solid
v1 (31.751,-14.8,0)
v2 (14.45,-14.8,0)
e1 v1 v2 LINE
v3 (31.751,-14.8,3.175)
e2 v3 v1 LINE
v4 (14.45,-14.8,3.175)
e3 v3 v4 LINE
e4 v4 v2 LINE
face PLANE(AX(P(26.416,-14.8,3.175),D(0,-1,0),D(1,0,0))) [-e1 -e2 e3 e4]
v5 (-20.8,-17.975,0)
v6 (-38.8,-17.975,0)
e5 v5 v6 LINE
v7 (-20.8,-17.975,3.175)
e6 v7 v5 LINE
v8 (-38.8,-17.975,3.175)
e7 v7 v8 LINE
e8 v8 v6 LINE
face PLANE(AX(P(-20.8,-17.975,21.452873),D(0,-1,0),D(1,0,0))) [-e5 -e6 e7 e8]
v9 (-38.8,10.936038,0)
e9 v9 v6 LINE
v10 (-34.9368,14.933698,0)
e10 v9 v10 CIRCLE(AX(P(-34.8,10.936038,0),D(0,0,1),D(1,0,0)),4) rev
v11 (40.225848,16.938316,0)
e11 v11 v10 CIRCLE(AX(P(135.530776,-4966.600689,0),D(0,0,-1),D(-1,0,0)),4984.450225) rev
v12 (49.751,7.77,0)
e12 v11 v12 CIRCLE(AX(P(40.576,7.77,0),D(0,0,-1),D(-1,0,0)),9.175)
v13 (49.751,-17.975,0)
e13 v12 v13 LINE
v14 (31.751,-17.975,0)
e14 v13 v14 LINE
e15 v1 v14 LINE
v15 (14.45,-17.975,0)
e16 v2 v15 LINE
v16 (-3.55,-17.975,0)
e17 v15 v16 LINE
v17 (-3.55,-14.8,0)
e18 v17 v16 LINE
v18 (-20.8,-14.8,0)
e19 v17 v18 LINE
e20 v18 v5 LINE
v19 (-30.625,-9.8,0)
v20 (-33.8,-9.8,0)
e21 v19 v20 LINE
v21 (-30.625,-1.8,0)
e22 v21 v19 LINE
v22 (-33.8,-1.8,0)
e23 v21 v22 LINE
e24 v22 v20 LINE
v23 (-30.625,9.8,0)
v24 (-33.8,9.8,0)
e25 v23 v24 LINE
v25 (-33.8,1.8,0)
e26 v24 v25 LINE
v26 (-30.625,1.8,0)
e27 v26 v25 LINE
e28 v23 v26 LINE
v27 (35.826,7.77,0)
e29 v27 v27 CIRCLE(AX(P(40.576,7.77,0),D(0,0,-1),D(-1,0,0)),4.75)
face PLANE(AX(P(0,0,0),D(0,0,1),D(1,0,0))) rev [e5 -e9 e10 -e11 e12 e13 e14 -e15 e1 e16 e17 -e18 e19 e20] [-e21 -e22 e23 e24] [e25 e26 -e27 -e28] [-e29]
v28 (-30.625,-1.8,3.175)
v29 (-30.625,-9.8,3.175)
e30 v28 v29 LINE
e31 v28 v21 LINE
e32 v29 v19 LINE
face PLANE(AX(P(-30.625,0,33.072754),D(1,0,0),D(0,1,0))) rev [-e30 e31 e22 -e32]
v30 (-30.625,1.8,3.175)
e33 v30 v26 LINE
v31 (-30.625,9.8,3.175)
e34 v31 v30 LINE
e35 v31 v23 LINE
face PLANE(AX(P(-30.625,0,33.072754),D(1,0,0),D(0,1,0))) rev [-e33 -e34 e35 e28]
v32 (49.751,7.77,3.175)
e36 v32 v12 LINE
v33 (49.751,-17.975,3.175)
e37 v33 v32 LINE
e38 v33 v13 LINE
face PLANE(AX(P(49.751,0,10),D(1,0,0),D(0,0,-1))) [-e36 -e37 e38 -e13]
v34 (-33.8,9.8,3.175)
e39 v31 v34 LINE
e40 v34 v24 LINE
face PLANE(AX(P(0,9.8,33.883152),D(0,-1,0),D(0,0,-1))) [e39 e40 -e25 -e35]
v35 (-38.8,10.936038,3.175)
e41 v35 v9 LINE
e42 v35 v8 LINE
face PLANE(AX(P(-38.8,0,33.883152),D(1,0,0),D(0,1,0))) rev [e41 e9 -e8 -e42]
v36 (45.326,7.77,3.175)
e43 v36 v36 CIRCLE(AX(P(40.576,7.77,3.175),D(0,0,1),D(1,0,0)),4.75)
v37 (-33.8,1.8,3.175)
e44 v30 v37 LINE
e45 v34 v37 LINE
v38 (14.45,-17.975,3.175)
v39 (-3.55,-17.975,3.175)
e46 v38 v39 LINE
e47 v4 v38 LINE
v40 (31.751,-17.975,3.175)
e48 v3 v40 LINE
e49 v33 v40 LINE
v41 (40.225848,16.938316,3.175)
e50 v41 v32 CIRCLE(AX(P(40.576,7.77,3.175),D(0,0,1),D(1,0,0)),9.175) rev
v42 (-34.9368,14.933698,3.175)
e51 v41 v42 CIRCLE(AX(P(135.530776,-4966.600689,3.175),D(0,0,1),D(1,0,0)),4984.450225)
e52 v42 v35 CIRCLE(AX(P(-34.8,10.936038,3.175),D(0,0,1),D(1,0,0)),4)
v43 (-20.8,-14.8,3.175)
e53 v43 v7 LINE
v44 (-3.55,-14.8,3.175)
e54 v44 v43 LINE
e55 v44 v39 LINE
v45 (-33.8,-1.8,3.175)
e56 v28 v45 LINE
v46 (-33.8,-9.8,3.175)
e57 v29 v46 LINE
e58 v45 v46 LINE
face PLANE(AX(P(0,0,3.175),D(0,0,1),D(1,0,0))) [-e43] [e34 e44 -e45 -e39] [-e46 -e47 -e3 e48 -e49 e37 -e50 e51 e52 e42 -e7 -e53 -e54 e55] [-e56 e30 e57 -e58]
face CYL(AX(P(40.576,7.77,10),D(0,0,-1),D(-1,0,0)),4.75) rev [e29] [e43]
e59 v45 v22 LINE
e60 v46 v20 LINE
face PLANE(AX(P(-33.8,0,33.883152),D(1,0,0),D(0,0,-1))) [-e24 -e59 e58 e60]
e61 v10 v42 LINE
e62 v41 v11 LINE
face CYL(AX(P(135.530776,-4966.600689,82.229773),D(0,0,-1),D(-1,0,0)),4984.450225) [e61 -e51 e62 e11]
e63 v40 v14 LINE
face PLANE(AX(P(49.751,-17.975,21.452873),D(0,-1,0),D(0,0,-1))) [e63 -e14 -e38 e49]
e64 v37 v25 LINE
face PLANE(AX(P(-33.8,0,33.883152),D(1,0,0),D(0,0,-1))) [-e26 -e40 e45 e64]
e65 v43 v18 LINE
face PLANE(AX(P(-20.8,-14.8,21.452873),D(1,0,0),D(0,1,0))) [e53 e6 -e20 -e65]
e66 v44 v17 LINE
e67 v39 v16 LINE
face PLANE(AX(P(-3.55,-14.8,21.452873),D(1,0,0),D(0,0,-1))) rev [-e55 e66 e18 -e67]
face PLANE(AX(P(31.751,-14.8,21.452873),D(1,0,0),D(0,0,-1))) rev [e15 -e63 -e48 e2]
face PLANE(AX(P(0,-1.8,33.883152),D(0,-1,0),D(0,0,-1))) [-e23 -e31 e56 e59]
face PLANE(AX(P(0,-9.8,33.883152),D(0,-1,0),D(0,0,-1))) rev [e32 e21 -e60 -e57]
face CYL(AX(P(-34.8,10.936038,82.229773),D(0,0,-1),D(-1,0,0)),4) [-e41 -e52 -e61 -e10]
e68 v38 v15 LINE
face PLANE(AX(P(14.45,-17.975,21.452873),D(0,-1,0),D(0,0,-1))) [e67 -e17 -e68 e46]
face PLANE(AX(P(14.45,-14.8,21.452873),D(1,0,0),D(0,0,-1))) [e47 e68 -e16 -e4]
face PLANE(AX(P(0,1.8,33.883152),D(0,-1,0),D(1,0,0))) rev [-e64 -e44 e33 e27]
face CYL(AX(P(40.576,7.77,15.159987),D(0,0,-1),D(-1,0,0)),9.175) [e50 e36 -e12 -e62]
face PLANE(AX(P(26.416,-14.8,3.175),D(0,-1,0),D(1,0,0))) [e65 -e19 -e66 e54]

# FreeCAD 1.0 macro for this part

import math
import FreeCAD as App
import Part
import Sketcher

V = App.Vector


def edges_at(feature, points):
    """Names of the edges that pass closest to the given points."""
    edges = feature.Shape.Edges
    near = lambda p: min(range(len(edges)), key=lambda i: edges[i].distToShape(Part.Vertex(*p))[0])
    return sorted({f"Edge{near(p) + 1}" for p in points})

doc = App.newDocument("Part")
body = doc.addObject("PartDesign::Body", "Body")

sketch1 = body.newObject("Sketcher::SketchObject", "Sketch")
sketch1.AttachmentSupport = (doc.getObject("XY_Plane"), [""])
sketch1.MapMode = "FlatFace"
sketch1.addGeometry([
    Part.LineSegment(V(-26.4, -14.8, 0), V(26.4, -14.8, 0)),
    Part.LineSegment(V(26.4, -14.8, 0), V(26.4, 14.8, 0)),
    Part.LineSegment(V(26.4, 14.8, 0), V(-26.4, 14.8, 0)),
    Part.LineSegment(V(-26.4, 14.8, 0), V(-26.4, -14.8, 0)),
    Part.LineSegment(V(-20.1, -9.8, 0), V(-20.1, 9.8, 0)),
    Part.LineSegment(V(-20.1, 9.8, 0), V(20.1, 9.8, 0)),
    Part.LineSegment(V(20.1, 9.8, 0), V(20.1, -9.8, 0)),
    Part.LineSegment(V(20.1, -9.8, 0), V(-20.1, -9.8, 0)),
    Part.Circle(V(-23.9, -5, 0), V(0, 0, 1), 1.7),
    Part.Circle(V(-23.9, 5, 0), V(0, 0, 1), 1.7),
    Part.Circle(V(23.9, 5, 0), V(0, 0, 1), 1.7),
    Part.Circle(V(23.9, -5, 0), V(0, 0, 1), 1.7),
], False)
sketch1.addConstraint([
    Sketcher.Constraint("Coincident", 0, 2, 1, 1),
    Sketcher.Constraint("Coincident", 1, 2, 2, 1),
    Sketcher.Constraint("Coincident", 2, 2, 3, 1),
    Sketcher.Constraint("Coincident", 3, 2, 0, 1),
    Sketcher.Constraint("Coincident", 4, 2, 5, 1),
    Sketcher.Constraint("Coincident", 5, 2, 6, 1),
    Sketcher.Constraint("Coincident", 6, 2, 7, 1),
    Sketcher.Constraint("Coincident", 7, 2, 4, 1),
    Sketcher.Constraint("Horizontal", 0),
    Sketcher.Constraint("Vertical", 1),
    Sketcher.Constraint("Horizontal", 2),
    Sketcher.Constraint("Vertical", 3),
    Sketcher.Constraint("Vertical", 4),
    Sketcher.Constraint("Horizontal", 5),
    Sketcher.Constraint("Vertical", 6),
    Sketcher.Constraint("Horizontal", 7),
    Sketcher.Constraint("Equal", 8, 9),
    Sketcher.Constraint("Equal", 9, 10),
    Sketcher.Constraint("Equal", 10, 11),
    Sketcher.Constraint("Symmetric", 8, 3, 10, 3, -1, 1),
    Sketcher.Constraint("Symmetric", 9, 3, 11, 3, -1, 1),
    Sketcher.Constraint("Symmetric", 0, 2, 2, 2, -1, 1),
    Sketcher.Constraint("Symmetric", 4, 2, 6, 2, -1, 1),
    Sketcher.Constraint("Symmetric", 9, 3, 10, 3, -2),
    Sketcher.Constraint("Diameter", 8, 3.35),
    Sketcher.Constraint("DistanceX", 5, 1, 5, 2, 40.3),
    Sketcher.Constraint("DistanceY", 1, 1, 1, 2, 29.6),
    Sketcher.Constraint("DistanceY", 4, 1, 4, 2, 19.6),
    Sketcher.Constraint("DistanceX", 9, 3, 10, 3, 47.9),
    Sketcher.Constraint("DistanceX", 0, 1, 0, 2, 52.832),
    Sketcher.Constraint("DistanceY", 8, 3, -1, 1, 4.974),
])
pad1 = body.newObject("PartDesign::Pad", "Pad")
pad1.Profile = sketch1
pad1.Length = 3.175

sketch2 = body.newObject("Sketcher::SketchObject", "Sketch001")
sketch2.AttachmentSupport = (doc.getObject("XY_Plane"), [""])
sketch2.MapMode = "FlatFace"
sketch2.AttachmentOffset = App.Placement(V(0, 0, 3.175), App.Rotation())
sketch2.addGeometry([
    Part.LineSegment(V(26, 15, 0), V(26, -15, 0)),
    Part.LineSegment(V(26, -15, 0), V(56, -15, 0)),
    Part.LineSegment(V(56, -15, 0), V(56, 15, 0)),
    Part.LineSegment(V(56, 15, 0), V(26, 15, 0)),
], False)
sketch2.addConstraint([
    Sketcher.Constraint("Coincident", 0, 2, 1, 1),
    Sketcher.Constraint("Coincident", 1, 2, 2, 1),
    Sketcher.Constraint("Coincident", 2, 2, 3, 1),
    Sketcher.Constraint("Coincident", 3, 2, 0, 1),
    Sketcher.Constraint("Vertical", 0),
    Sketcher.Constraint("Horizontal", 1),
    Sketcher.Constraint("Vertical", 2),
    Sketcher.Constraint("Horizontal", 3),
    Sketcher.Constraint("DistanceX", 1, 1, 1, 2, 30.0),
    Sketcher.Constraint("DistanceY", 0, 2, 0, 1, 29.6),
    Sketcher.Constraint("DistanceY", 0, 2, -1, 1, 14.8),
    Sketcher.Constraint("DistanceX", -1, 1, 0, 2, 26.416),
])
pad2 = body.newObject("PartDesign::Pad", "Pad001")
pad2.Profile = sketch2
pad2.Length = 3.175
pad2.Reversed = True

sketch3 = body.newObject("Sketcher::SketchObject", "Sketch002")
sketch3.AttachmentSupport = (doc.getObject("XY_Plane"), [""])
sketch3.MapMode = "FlatFace"
sketch3.addGeometry(Part.Circle(V(40.6, 7.8, 0), V(0, 0, 1), 4.8), False)
sketch3.addConstraint([
    Sketcher.Constraint("Diameter", 0, 9.5),
    Sketcher.Constraint("DistanceY", -1, 1, 0, 3, 7.77),
    Sketcher.Constraint("DistanceX", -1, 1, 0, 3, 40.576),
])
pocket1 = body.newObject("PartDesign::Pocket", "Pocket")
pocket1.Profile = sketch3
pocket1.Length = 10
pocket1.Reversed = True

sketch4 = body.newObject("Sketcher::SketchObject", "Sketch003")
sketch4.AttachmentSupport = (doc.getObject("XY_Plane"), [""])
sketch4.MapMode = "FlatFace"
sketch4.addGeometry([
    Part.ArcOfCircle(Part.Circle(V(41, 8, 0), V(0, 0, 1), 9), math.radians(50), math.radians(130)),
    Part.LineSegment(V(46, 15, 0), V(35, 15, 0)),
], False)
sketch4.addConstraint([
    Sketcher.Constraint("Coincident", 0, 1, 1, 1),
    Sketcher.Constraint("Coincident", 1, 2, 0, 2),
    Sketcher.Constraint("Horizontal", 1),
    Sketcher.Constraint("Radius", 0, 9.175),
    Sketcher.Constraint("DistanceY", -1, 1, 0, 1, 14.8),
    Sketcher.Constraint("DistanceY", -1, 1, 0, 3, 7.77),
    Sketcher.Constraint("DistanceX", -1, 1, 0, 3, 40.576),
])
pad3 = body.newObject("PartDesign::Pad", "Pad002")
pad3.Profile = sketch4
pad3.Length = 3.175

sketch5 = body.newObject("Sketcher::SketchObject", "Sketch004")
sketch5.AttachmentSupport = (doc.getObject("XY_Plane"), [""])
sketch5.MapMode = "FlatFace"
sketch5.addGeometry([
    Part.LineSegment(V(50, -15, 0), V(50, 8, 0)),
    Part.ArcOfCircle(Part.Circle(V(41, 8, 0), V(0, 0, 1), 9), math.radians(0), math.radians(50)),
    Part.LineSegment(V(46, 15, 0), V(56, 15, 0)),
    Part.LineSegment(V(56, 15, 0), V(56, -15, 0)),
    Part.LineSegment(V(56, -15, 0), V(50, -15, 0)),
], False)
sketch5.addConstraint([
    Sketcher.Constraint("Tangent", 0, 2, 1, 1),
    Sketcher.Constraint("Coincident", 1, 2, 2, 1),
    Sketcher.Constraint("Coincident", 2, 2, 3, 1),
    Sketcher.Constraint("Coincident", 3, 2, 4, 1),
    Sketcher.Constraint("Coincident", 4, 2, 0, 1),
    Sketcher.Constraint("Vertical", 0),
    Sketcher.Constraint("Horizontal", 2),
    Sketcher.Constraint("Vertical", 3),
    Sketcher.Constraint("Horizontal", 4),
    Sketcher.Constraint("DistanceY", 3, 2, 3, 1, 29.6),
    Sketcher.Constraint("Radius", 1, 9.175),
    Sketcher.Constraint("DistanceY", 0, 1, 0, 2, 22.57),
    Sketcher.Constraint("DistanceY", -1, 1, 1, 2, 14.8),
    Sketcher.Constraint("DistanceX", 4, 2, 4, 1, 6.665),
    Sketcher.Constraint("DistanceX", -1, 1, 1, 3, 40.576),
])
pocket2 = body.newObject("PartDesign::Pocket", "Pocket001")
pocket2.Profile = sketch5
pocket2.Length = 10
pocket2.Reversed = True

sketch6 = body.newObject("Sketcher::SketchObject", "Sketch005")
sketch6.AttachmentSupport = (doc.getObject("XY_Plane"), [""])
sketch6.MapMode = "FlatFace"
sketch6.addGeometry([
    Part.LineSegment(V(-30.6, 14.8, 0), V(-26.4, 14.8, 0)),
    Part.LineSegment(V(-26.4, 14.8, 0), V(-26.4, -14.8, 0)),
    Part.LineSegment(V(-26.4, -14.8, 0), V(-30.6, -14.8, 0)),
    Part.LineSegment(V(-30.6, -14.8, 0), V(-30.6, 14.8, 0)),
], False)
sketch6.addConstraint([
    Sketcher.Constraint("Coincident", 0, 2, 1, 1),
    Sketcher.Constraint("Coincident", 1, 2, 2, 1),
    Sketcher.Constraint("Coincident", 2, 2, 3, 1),
    Sketcher.Constraint("Coincident", 3, 2, 0, 1),
    Sketcher.Constraint("Horizontal", 0),
    Sketcher.Constraint("Vertical", 1),
    Sketcher.Constraint("Horizontal", 2),
    Sketcher.Constraint("Vertical", 3),
    Sketcher.Constraint("DistanceY", 1, 2, 1, 1, 29.6),
    Sketcher.Constraint("DistanceY", -1, 1, 0, 2, 14.8),
    Sketcher.Constraint("DistanceX", 0, 1, 0, 2, 4.209),
    Sketcher.Constraint("DistanceX", 0, 2, -1, 1, 26.416),
])
pad4 = body.newObject("PartDesign::Pad", "Pad003")
pad4.Profile = sketch6
pad4.Length = 3.175

sketch7 = body.newObject("Sketcher::SketchObject", "Sketch006")
sketch7.AttachmentSupport = (doc.getObject("XY_Plane"), [""])
sketch7.MapMode = "FlatFace"
sketch7.addGeometry([
    Part.LineSegment(V(-30.6, 14.8, 0), V(-30.6, 9.8, 0)),
    Part.LineSegment(V(-30.6, 9.8, 0), V(-33.8, 9.8, 0)),
    Part.LineSegment(V(-33.8, 9.8, 0), V(-33.8, 1.8, 0)),
    Part.LineSegment(V(-33.8, 1.8, 0), V(-30.6, 1.8, 0)),
    Part.LineSegment(V(-30.6, 1.8, 0), V(-30.6, -1.8, 0)),
    Part.LineSegment(V(-30.6, -1.8, 0), V(-33.8, -1.8, 0)),
    Part.LineSegment(V(-33.8, -1.8, 0), V(-33.8, -9.8, 0)),
    Part.LineSegment(V(-33.8, -9.8, 0), V(-30.6, -9.8, 0)),
    Part.LineSegment(V(-30.6, -9.8, 0), V(-30.6, -14.8, 0)),
    Part.LineSegment(V(-30.6, -14.8, 0), V(-38.8, -14.8, 0)),
    Part.LineSegment(V(-38.8, -14.8, 0), V(-38.8, 14.8, 0)),
    Part.LineSegment(V(-38.8, 14.8, 0), V(-30.6, 14.8, 0)),
], False)
sketch7.addConstraint([
    Sketcher.Constraint("Coincident", 0, 2, 1, 1),
    Sketcher.Constraint("Coincident", 1, 2, 2, 1),
    Sketcher.Constraint("Coincident", 2, 2, 3, 1),
    Sketcher.Constraint("Coincident", 3, 2, 4, 1),
    Sketcher.Constraint("Coincident", 4, 2, 5, 1),
    Sketcher.Constraint("Coincident", 5, 2, 6, 1),
    Sketcher.Constraint("Coincident", 6, 2, 7, 1),
    Sketcher.Constraint("Coincident", 7, 2, 8, 1),
    Sketcher.Constraint("Coincident", 8, 2, 9, 1),
    Sketcher.Constraint("Coincident", 9, 2, 10, 1),
    Sketcher.Constraint("Coincident", 10, 2, 11, 1),
    Sketcher.Constraint("Coincident", 11, 2, 0, 1),
    Sketcher.Constraint("Vertical", 0),
    Sketcher.Constraint("Horizontal", 1),
    Sketcher.Constraint("Vertical", 2),
    Sketcher.Constraint("Horizontal", 3),
    Sketcher.Constraint("Vertical", 4),
    Sketcher.Constraint("Horizontal", 5),
    Sketcher.Constraint("Vertical", 6),
    Sketcher.Constraint("Horizontal", 7),
    Sketcher.Constraint("Vertical", 8),
    Sketcher.Constraint("Horizontal", 9),
    Sketcher.Constraint("Vertical", 10),
    Sketcher.Constraint("Horizontal", 11),
    Sketcher.Constraint("Symmetric", 2, 2, 5, 2, -1),
    Sketcher.Constraint("Symmetric", 0, 2, 7, 2, -1),
    Sketcher.Constraint("Vertical", 0, 2, 3, 2),
    Sketcher.Constraint("Equal", 0, 8),
    Sketcher.Constraint("DistanceY", 0, 2, 0, 1, 5.0),
    Sketcher.Constraint("DistanceY", 2, 2, 2, 1, 8.0),
    Sketcher.Constraint("DistanceY", 4, 2, 4, 1, 3.6),
    Sketcher.Constraint("DistanceX", 9, 2, 6, 2, 5.0),
    Sketcher.Constraint("DistanceX", 1, 2, -1, 1, 33.8),
    Sketcher.Constraint("DistanceX", 1, 2, 1, 1, 3.175),
])
pad5 = body.newObject("PartDesign::Pad", "Pad004")
pad5.Profile = sketch7
pad5.Length = 3.175

sketch8 = body.newObject("Sketcher::SketchObject", "Sketch007")
sketch8.AttachmentSupport = (doc.getObject("XY_Plane"), [""])
sketch8.MapMode = "FlatFace"
sketch8.addGeometry([
    Part.ArcOfCircle(Part.Circle(V(41, 8, 0), V(0, 0, 1), 9), math.radians(92), math.radians(130)),
    Part.LineSegment(V(35, 15, 0), V(-39, 15, 0)),
    Part.ArcOfCircle(Part.Circle(V(136, -4967, 0), V(0, 0, 1), 4984), math.radians(91.1), math.radians(92)),
], False)
sketch8.addConstraint([
    Sketcher.Constraint("Coincident", 0, 2, 1, 1),
    Sketcher.Constraint("Coincident", 1, 2, 2, 2),
    Sketcher.Constraint("Coincident", 2, 1, 0, 1),
    Sketcher.Constraint("Horizontal", 1),
    Sketcher.Constraint("Radius", 0, 9.175),
    Sketcher.Constraint("DistanceY", -1, 1, 0, 2, 14.8),
    Sketcher.Constraint("DistanceX", 1, 2, -1, 1, 38.8),
    Sketcher.Constraint("DistanceY", -1, 1, 0, 3, 7.77),
    Sketcher.Constraint("Radius", 2, 4984.45023),
    Sketcher.Constraint("DistanceX", -1, 1, 0, 3, 40.576),
    Sketcher.Constraint("DistanceX", -1, 1, 2, 3, 135.530776),
])
pad6 = body.newObject("PartDesign::Pad", "Pad005")
pad6.Profile = sketch8
pad6.Length = 3.175
doc.recompute()

fillet = body.newObject("PartDesign::Fillet", "Fillet")
fillet.Base = (pad6, edges_at(pad6, [(-38.8, 14.8, 1.587)]))
fillet.Radius = 4

sketch9 = body.newObject("Sketcher::SketchObject", "Sketch008")
sketch9.AttachmentSupport = (doc.getObject("XY_Plane"), [""])
sketch9.MapMode = "FlatFace"
sketch9.addGeometry([
    Part.LineSegment(V(44.8, -1.8, 0), V(44.8, -9.8, 0)),
    Part.LineSegment(V(44.8, -9.8, 0), V(41.6, -9.8, 0)),
    Part.LineSegment(V(41.6, -9.8, 0), V(41.6, -1.8, 0)),
    Part.LineSegment(V(41.6, -1.8, 0), V(44.8, -1.8, 0)),
], False)
sketch9.addConstraint([
    Sketcher.Constraint("Coincident", 0, 2, 1, 1),
    Sketcher.Constraint("Coincident", 1, 2, 2, 1),
    Sketcher.Constraint("Coincident", 2, 2, 3, 1),
    Sketcher.Constraint("Coincident", 3, 2, 0, 1),
    Sketcher.Constraint("Vertical", 0),
    Sketcher.Constraint("Horizontal", 1),
    Sketcher.Constraint("Vertical", 2),
    Sketcher.Constraint("Horizontal", 3),
    Sketcher.Constraint("DistanceY", 0, 2, 0, 1, 8.0),
    Sketcher.Constraint("DistanceY", 0, 2, -1, 1, 9.8),
    Sketcher.Constraint("DistanceX", 1, 2, 1, 1, 3.175),
    Sketcher.Constraint("DistanceX", -1, 1, 0, 2, 44.751),
])
pocket3 = body.newObject("PartDesign::Pocket", "Pocket002")
pocket3.Profile = sketch9
pocket3.Length = 10
pocket3.Reversed = True

sketch10 = body.newObject("Sketcher::SketchObject", "Sketch009")
sketch10.AttachmentSupport = (doc.getObject("XY_Plane"), [""])
sketch10.MapMode = "FlatFace"
sketch10.addGeometry([
    Part.LineSegment(V(49.8, -14.8, 0), V(49.8, -18, 0)),
    Part.LineSegment(V(49.8, -18, 0), V(31.8, -18, 0)),
    Part.LineSegment(V(31.8, -18, 0), V(31.8, -14.8, 0)),
    Part.LineSegment(V(31.8, -14.8, 0), V(49.8, -14.8, 0)),
    Part.LineSegment(V(14.4, -14.8, 0), V(14.4, -18, 0)),
    Part.LineSegment(V(14.4, -18, 0), V(-3.5, -18, 0)),
    Part.LineSegment(V(-3.5, -18, 0), V(-3.5, -14.8, 0)),
    Part.LineSegment(V(-3.5, -14.8, 0), V(14.4, -14.8, 0)),
    Part.LineSegment(V(-20.8, -14.8, 0), V(-20.8, -18, 0)),
    Part.LineSegment(V(-20.8, -18, 0), V(-38.8, -18, 0)),
    Part.LineSegment(V(-38.8, -18, 0), V(-38.8, -14.8, 0)),
    Part.LineSegment(V(-38.8, -14.8, 0), V(-20.8, -14.8, 0)),
], False)
sketch10.addConstraint([
    Sketcher.Constraint("Coincident", 0, 2, 1, 1),
    Sketcher.Constraint("Coincident", 1, 2, 2, 1),
    Sketcher.Constraint("Coincident", 2, 2, 3, 1),
    Sketcher.Constraint("Coincident", 3, 2, 0, 1),
    Sketcher.Constraint("Coincident", 4, 2, 5, 1),
    Sketcher.Constraint("Coincident", 5, 2, 6, 1),
    Sketcher.Constraint("Coincident", 6, 2, 7, 1),
    Sketcher.Constraint("Coincident", 7, 2, 4, 1),
    Sketcher.Constraint("Coincident", 8, 2, 9, 1),
    Sketcher.Constraint("Coincident", 9, 2, 10, 1),
    Sketcher.Constraint("Coincident", 10, 2, 11, 1),
    Sketcher.Constraint("Coincident", 11, 2, 8, 1),
    Sketcher.Constraint("Vertical", 0),
    Sketcher.Constraint("Horizontal", 1),
    Sketcher.Constraint("Vertical", 2),
    Sketcher.Constraint("Horizontal", 3),
    Sketcher.Constraint("Vertical", 4),
    Sketcher.Constraint("Horizontal", 5),
    Sketcher.Constraint("Vertical", 6),
    Sketcher.Constraint("Horizontal", 7),
    Sketcher.Constraint("Vertical", 8),
    Sketcher.Constraint("Horizontal", 9),
    Sketcher.Constraint("Vertical", 10),
    Sketcher.Constraint("Horizontal", 11),
    Sketcher.Constraint("Horizontal", 1, 2, 4, 2),
    Sketcher.Constraint("Horizontal", 3, 2, 6, 2),
    Sketcher.Constraint("Horizontal", 5, 2, 8, 2),
    Sketcher.Constraint("Horizontal", 7, 2, 10, 2),
    Sketcher.Constraint("Equal", 3, 5),
    Sketcher.Constraint("Equal", 7, 9),
    Sketcher.Constraint("DistanceX", 1, 2, 1, 1, 18.0),
    Sketcher.Constraint("DistanceY", 2, 2, -1, 1, 14.8),
    Sketcher.Constraint("DistanceX", 8, 2, -1, 1, 20.8),
    Sketcher.Constraint("DistanceY", 0, 2, 0, 1, 3.175),
    Sketcher.Constraint("DistanceX", -1, 1, 4, 2, 14.45),
    Sketcher.Constraint("DistanceX", -1, 1, 0, 2, 49.751),
])
pad7 = body.newObject("PartDesign::Pad", "Pad006")
pad7.Profile = sketch10
pad7.Length = 3.175

sketch11 = body.newObject("Sketcher::SketchObject", "Sketch010")
sketch11.AttachmentSupport = (doc.getObject("XY_Plane"), [""])
sketch11.MapMode = "FlatFace"
sketch11.addGeometry([
    Part.LineSegment(V(27, 12, 0), V(27, -11, 0)),
    Part.LineSegment(V(27, -11, 0), V(-27, -11, 0)),
    Part.LineSegment(V(-27, -11, 0), V(-27, 12, 0)),
    Part.LineSegment(V(-27, 12, 0), V(27, 12, 0)),
], False)
sketch11.addConstraint([
    Sketcher.Constraint("Coincident", 0, 2, 1, 1),
    Sketcher.Constraint("Coincident", 1, 2, 2, 1),
    Sketcher.Constraint("Coincident", 2, 2, 3, 1),
    Sketcher.Constraint("Coincident", 3, 2, 0, 1),
    Sketcher.Constraint("Vertical", 0),
    Sketcher.Constraint("Horizontal", 1),
    Sketcher.Constraint("Vertical", 2),
    Sketcher.Constraint("Horizontal", 3),
    Sketcher.Constraint("DistanceX", 1, 2, 1, 1, 53.813797),
    Sketcher.Constraint("DistanceY", 0, 2, 0, 1, 23.475818),
    Sketcher.Constraint("DistanceY", -1, 1, 2, 2, 12.486991),
    Sketcher.Constraint("DistanceX", -1, 1, 0, 2, 26.513444),
])
pad8 = body.newObject("PartDesign::Pad", "Pad007")
pad8.Profile = sketch11
pad8.Length = 3.175

sketch12 = body.newObject("Sketcher::SketchObject", "Sketch011")
sketch12.AttachmentSupport = (doc.getObject("XY_Plane"), [""])
sketch12.MapMode = "FlatFace"
sketch12.addGeometry([
    Part.LineSegment(V(46, 0, 0), V(46, -11, 0)),
    Part.LineSegment(V(46, -11, 0), V(38, -11, 0)),
    Part.LineSegment(V(38, -11, 0), V(38, 0, 0)),
    Part.LineSegment(V(38, 0, 0), V(46, 0, 0)),
], False)
sketch12.addConstraint([
    Sketcher.Constraint("Coincident", 0, 2, 1, 1),
    Sketcher.Constraint("Coincident", 1, 2, 2, 1),
    Sketcher.Constraint("Coincident", 2, 2, 3, 1),
    Sketcher.Constraint("Coincident", 3, 2, 0, 1),
    Sketcher.Constraint("Vertical", 0),
    Sketcher.Constraint("Horizontal", 1),
    Sketcher.Constraint("Vertical", 2),
    Sketcher.Constraint("Horizontal", 3),
    Sketcher.Constraint("PointOnObject", 2, 2, -1),
    Sketcher.Constraint("DistanceY", 0, 2, 0, 1, 11.16941),
    Sketcher.Constraint("DistanceX", 1, 2, 1, 1, 8.216536),
    Sketcher.Constraint("DistanceX", -1, 1, 0, 2, 45.835848),
])
pad9 = body.newObject("PartDesign::Pad", "Pad008")
pad9.Profile = sketch12
pad9.Length = 3.175

doc.recompute()
